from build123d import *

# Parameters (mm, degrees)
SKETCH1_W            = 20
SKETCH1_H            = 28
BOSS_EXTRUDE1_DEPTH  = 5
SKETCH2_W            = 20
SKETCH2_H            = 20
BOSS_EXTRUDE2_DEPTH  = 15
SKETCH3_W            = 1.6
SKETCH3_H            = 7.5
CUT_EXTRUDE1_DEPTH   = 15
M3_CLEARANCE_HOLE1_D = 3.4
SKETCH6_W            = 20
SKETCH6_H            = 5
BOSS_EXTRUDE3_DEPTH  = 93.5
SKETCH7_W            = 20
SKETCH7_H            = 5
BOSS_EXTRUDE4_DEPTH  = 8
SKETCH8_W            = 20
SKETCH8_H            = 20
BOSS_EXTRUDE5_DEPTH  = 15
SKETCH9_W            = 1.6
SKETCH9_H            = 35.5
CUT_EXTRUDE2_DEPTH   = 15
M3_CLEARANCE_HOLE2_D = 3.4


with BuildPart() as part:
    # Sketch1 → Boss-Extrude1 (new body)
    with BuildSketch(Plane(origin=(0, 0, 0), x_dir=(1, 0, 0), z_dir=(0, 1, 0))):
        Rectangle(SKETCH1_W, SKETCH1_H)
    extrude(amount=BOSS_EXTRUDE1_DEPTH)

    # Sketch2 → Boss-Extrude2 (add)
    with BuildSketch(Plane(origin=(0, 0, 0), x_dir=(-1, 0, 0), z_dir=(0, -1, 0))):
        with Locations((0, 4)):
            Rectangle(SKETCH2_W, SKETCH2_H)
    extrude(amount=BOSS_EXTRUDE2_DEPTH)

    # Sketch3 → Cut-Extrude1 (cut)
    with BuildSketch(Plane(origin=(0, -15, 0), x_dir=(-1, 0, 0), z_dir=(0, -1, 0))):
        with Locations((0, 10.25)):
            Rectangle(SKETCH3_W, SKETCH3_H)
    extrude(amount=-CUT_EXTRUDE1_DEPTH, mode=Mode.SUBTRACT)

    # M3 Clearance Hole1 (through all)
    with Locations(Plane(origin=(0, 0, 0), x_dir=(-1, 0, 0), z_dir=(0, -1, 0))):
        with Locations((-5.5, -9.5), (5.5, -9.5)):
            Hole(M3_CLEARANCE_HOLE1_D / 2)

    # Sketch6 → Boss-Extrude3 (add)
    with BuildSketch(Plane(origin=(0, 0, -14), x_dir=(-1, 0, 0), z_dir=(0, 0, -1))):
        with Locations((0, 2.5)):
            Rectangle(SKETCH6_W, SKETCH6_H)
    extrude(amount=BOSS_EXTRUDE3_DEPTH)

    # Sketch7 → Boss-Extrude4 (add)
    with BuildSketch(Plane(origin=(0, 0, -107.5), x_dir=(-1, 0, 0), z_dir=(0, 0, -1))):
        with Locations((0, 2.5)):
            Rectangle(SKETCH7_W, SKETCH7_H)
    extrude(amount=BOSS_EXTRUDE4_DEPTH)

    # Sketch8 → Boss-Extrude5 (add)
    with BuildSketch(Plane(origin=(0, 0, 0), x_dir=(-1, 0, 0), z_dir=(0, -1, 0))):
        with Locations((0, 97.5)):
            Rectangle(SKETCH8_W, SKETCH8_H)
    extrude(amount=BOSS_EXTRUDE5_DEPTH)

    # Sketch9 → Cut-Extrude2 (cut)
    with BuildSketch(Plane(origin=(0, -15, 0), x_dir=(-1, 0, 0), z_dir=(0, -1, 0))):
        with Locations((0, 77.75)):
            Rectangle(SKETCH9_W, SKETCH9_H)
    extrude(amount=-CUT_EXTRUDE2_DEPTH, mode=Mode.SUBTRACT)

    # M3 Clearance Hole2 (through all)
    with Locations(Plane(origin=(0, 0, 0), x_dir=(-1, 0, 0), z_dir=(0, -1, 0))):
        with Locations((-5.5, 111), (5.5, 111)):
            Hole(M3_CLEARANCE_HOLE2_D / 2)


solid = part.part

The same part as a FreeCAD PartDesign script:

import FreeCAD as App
import Part
import Sketcher
Q = App.Units.Quantity

doc = App.newDocument("Part")
params = doc.addObject("Spreadsheet::Sheet", "Params")
for row, (alias, value) in enumerate([
    ("sketch1_width", "20 mm"),
    ("sketch1_height", "28 mm"),
    ("pad1_length", "5 mm"),
    ("sketch2_width", "20 mm"),
    ("pad2_length", "15 mm"),
    ("sketch3_width", "1.6 mm"),
    ("sketch3_height", "7.5 mm"),
    ("pocket1_length", "15 mm"),
    ("sketch4_diameter", "3.4 mm"),
    ("hole_diameter", "3.4 mm"),
    ("sketch5_width", "20 mm"),
    ("sketch5_height", "5 mm"),
    ("pad3_length", "93.5 mm"),
    ("sketch6_width", "20 mm"),
    ("sketch6_height", "5 mm"),
    ("pad4_length", "8 mm"),
    ("sketch7_width", "20 mm"),
    ("pad5_length", "15 mm"),
    ("sketch8_width", "1.6 mm"),
    ("sketch8_height", "35.5 mm"),
    ("pocket2_length", "15 mm"),
    ("sketch9_diameter", "3.4 mm"),
    ("hole2_diameter", "3.4 mm"),
], start=1):
    params.set(f"A{row}", alias)
    params.set(f"B{row}", "=" + value)
    params.setAlias(f"B{row}", alias)

body = doc.addObject("PartDesign::Body", "Body")

sketch1 = body.newObject("Sketcher::SketchObject", "Sketch")
sketch1.AttachmentSupport = (doc.getObject("XZ_Plane"), [""])
sketch1.MapMode = "FlatFace"
sketch1.addGeometry([
    Part.LineSegment(App.Vector(-10, -14, 0), App.Vector(-10, 14, 0)),
    Part.LineSegment(App.Vector(-10, 14, 0), App.Vector(10, 14, 0)),
    Part.LineSegment(App.Vector(10, 14, 0), App.Vector(10, -14, 0)),
    Part.LineSegment(App.Vector(10, -14, 0), App.Vector(-10, -14, 0)),
], False)
sketch1.addConstraint([
    Sketcher.Constraint("Coincident", 0, 2, 1, 1),
    Sketcher.Constraint("Coincident", 1, 2, 2, 1),
    Sketcher.Constraint("Coincident", 2, 2, 3, 1),
    Sketcher.Constraint("Coincident", 3, 2, 0, 1),
    Sketcher.Constraint("Vertical", 0),
    Sketcher.Constraint("Horizontal", 1),
    Sketcher.Constraint("Vertical", 2),
    Sketcher.Constraint("Horizontal", 3),
    Sketcher.Constraint("Symmetric", 0, 2, 2, 2, -1, 1),
    Sketcher.Constraint("DistanceX", 1, 1, 1, 2, Q("20 mm")),
    Sketcher.Constraint("DistanceY", 0, 1, 0, 2, Q("28 mm")),
])
sketch1.setExpression("Constraints[9]", "Params.sketch1_width")
sketch1.setExpression("Constraints[10]", "Params.sketch1_height")
pad1 = body.newObject("PartDesign::Pad", "Pad")
pad1.Profile = sketch1
pad1.setExpression("Length", "Params.pad1_length")
pad1.Reversed = True

sketch2 = body.newObject("Sketcher::SketchObject", "Sketch001")
sketch2.AttachmentSupport = (doc.getObject("XZ_Plane"), [""])
sketch2.MapMode = "FlatFace"
sketch2.addGeometry([
    Part.LineSegment(App.Vector(10, -14, 0), App.Vector(10, 6, 0)),
    Part.LineSegment(App.Vector(10, 6, 0), App.Vector(-10, 6, 0)),
    Part.LineSegment(App.Vector(-10, 6, 0), App.Vector(-10, -14, 0)),
    Part.LineSegment(App.Vector(-10, -14, 0), App.Vector(10, -14, 0)),
], False)
sketch2.addConstraint([
    Sketcher.Constraint("Coincident", 0, 2, 1, 1),
    Sketcher.Constraint("Coincident", 1, 2, 2, 1),
    Sketcher.Constraint("Coincident", 2, 2, 3, 1),
    Sketcher.Constraint("Coincident", 3, 2, 0, 1),
    Sketcher.Constraint("Vertical", 0),
    Sketcher.Constraint("Horizontal", 1),
    Sketcher.Constraint("Vertical", 2),
    Sketcher.Constraint("Horizontal", 3),
    Sketcher.Constraint("Equal", 3, 0),
    Sketcher.Constraint("DistanceX", 1, 2, 1, 1, Q("20 mm")),
    Sketcher.Constraint("DistanceX", -1, 1, 0, 2, Q("10 mm")),
    Sketcher.Constraint("DistanceY", -1, 1, 0, 2, Q("6 mm")),
])
sketch2.setExpression("Constraints[9]", "Params.sketch2_width")
pad2 = body.newObject("PartDesign::Pad", "Pad001")
pad2.Profile = sketch2
pad2.setExpression("Length", "Params.pad2_length")

sketch3 = body.newObject("Sketcher::SketchObject", "Sketch002")
sketch3.AttachmentSupport = (doc.getObject("XZ_Plane"), [""])
sketch3.MapMode = "FlatFace"
sketch3.AttachmentOffset = App.Placement(App.Vector(0, 0, 15), App.Rotation())
sketch3.addGeometry([
    Part.LineSegment(App.Vector(0.8, -14, 0), App.Vector(0.8, -6.5, 0)),
    Part.LineSegment(App.Vector(0.8, -6.5, 0), App.Vector(-0.8, -6.5, 0)),
    Part.LineSegment(App.Vector(-0.8, -6.5, 0), App.Vector(-0.8, -14, 0)),
    Part.LineSegment(App.Vector(-0.8, -14, 0), App.Vector(0.8, -14, 0)),
], False)
sketch3.addConstraint([
    Sketcher.Constraint("Coincident", 0, 2, 1, 1),
    Sketcher.Constraint("Coincident", 1, 2, 2, 1),
    Sketcher.Constraint("Coincident", 2, 2, 3, 1),
    Sketcher.Constraint("Coincident", 3, 2, 0, 1),
    Sketcher.Constraint("Vertical", 0),
    Sketcher.Constraint("Horizontal", 1),
    Sketcher.Constraint("Vertical", 2),
    Sketcher.Constraint("Horizontal", 3),
    Sketcher.Constraint("DistanceX", 1, 2, 1, 1, Q("1.6 mm")),
    Sketcher.Constraint("DistanceY", 0, 1, 0, 2, Q("7.5 mm")),
    Sketcher.Constraint("DistanceY", 2, 2, -1, 1, Q("14 mm")),
    Sketcher.Constraint("DistanceX", -1, 1, 0, 2, Q("0.8 mm")),
])
sketch3.setExpression("Constraints[8]", "Params.sketch3_width")
sketch3.setExpression("Constraints[9]", "Params.sketch3_height")
pocket1 = body.newObject("PartDesign::Pocket", "Pocket")
pocket1.Profile = sketch3
pocket1.setExpression("Length", "Params.pocket1_length")

sketch4 = body.newObject("Sketcher::SketchObject", "Sketch003")
sketch4.AttachmentSupport = (doc.getObject("XZ_Plane"), [""])
sketch4.MapMode = "FlatFace"
sketch4.addGeometry([
    Part.Circle(App.Vector(5.5, 9.5, 0), App.Vector(0, 0, 1), 1.7),
    Part.Circle(App.Vector(-5.5, 9.5, 0), App.Vector(0, 0, 1), 1.7),
], False)
sketch4.addConstraint([
    Sketcher.Constraint("Equal", 0, 1),
    Sketcher.Constraint("Symmetric", 0, 3, 1, 3, -2),
    Sketcher.Constraint("Diameter", 0, Q("3.4 mm")),
    Sketcher.Constraint("DistanceX", 1, 3, 0, 3, Q("11 mm")),
    Sketcher.Constraint("DistanceY", -1, 1, 0, 3, Q("9.5 mm")),
])
sketch4.setExpression("Constraints[2]", "Params.sketch4_diameter")
doc.recompute()
hole = body.newObject("PartDesign::Hole", "Hole")
hole.Profile = sketch4
hole.ThreadType = "None"
hole.setExpression("Diameter", "Params.hole_diameter")
hole.DepthType = "ThroughAll"

sketch5 = body.newObject("Sketcher::SketchObject", "Sketch004")
sketch5.AttachmentSupport = (doc.getObject("XY_Plane"), [""])
sketch5.MapMode = "FlatFace"
sketch5.AttachmentOffset = App.Placement(App.Vector(0, 0, -14), App.Rotation())
sketch5.addGeometry([
    Part.LineSegment(App.Vector(10, 5, 0), App.Vector(10, 0, 0)),
    Part.LineSegment(App.Vector(10, 0, 0), App.Vector(-10, 0, 0)),
    Part.LineSegment(App.Vector(-10, 0, 0), App.Vector(-10, 5, 0)),
    Part.LineSegment(App.Vector(-10, 5, 0), App.Vector(10, 5, 0)),
], False)
sketch5.addConstraint([
    Sketcher.Constraint("Coincident", 0, 2, 1, 1),
    Sketcher.Constraint("Coincident", 1, 2, 2, 1),
    Sketcher.Constraint("Coincident", 2, 2, 3, 1),
    Sketcher.Constraint("Coincident", 3, 2, 0, 1),
    Sketcher.Constraint("Vertical", 0),
    Sketcher.Constraint("Horizontal", 1),
    Sketcher.Constraint("Vertical", 2),
    Sketcher.Constraint("Horizontal", 3),
    Sketcher.Constraint("Symmetric", 0, 2, 1, 2, -1, 1),
    Sketcher.Constraint("DistanceX", 1, 2, 1, 1, Q("20 mm")),
    Sketcher.Constraint("DistanceY", 0, 2, 0, 1, Q("5 mm")),
])
sketch5.setExpression("Constraints[9]", "Params.sketch5_width")
sketch5.setExpression("Constraints[10]", "Params.sketch5_height")
pad3 = body.newObject("PartDesign::Pad", "Pad002")
pad3.Profile = sketch5
pad3.setExpression("Length", "Params.pad3_length")
pad3.Reversed = True

sketch6 = body.newObject("Sketcher::SketchObject", "Sketch005")
sketch6.AttachmentSupport = (doc.getObject("XY_Plane"), [""])
sketch6.MapMode = "FlatFace"
sketch6.AttachmentOffset = App.Placement(App.Vector(0, 0, -107.5), App.Rotation())
sketch6.addGeometry([
    Part.LineSegment(App.Vector(10, 5, 0), App.Vector(10, 0, 0)),
    Part.LineSegment(App.Vector(10, 0, 0), App.Vector(-10, 0, 0)),
    Part.LineSegment(App.Vector(-10, 0, 0), App.Vector(-10, 5, 0)),
    Part.LineSegment(App.Vector(-10, 5, 0), App.Vector(10, 5, 0)),
], False)
sketch6.addConstraint([
    Sketcher.Constraint("Coincident", 0, 2, 1, 1),
    Sketcher.Constraint("Coincident", 1, 2, 2, 1),
    Sketcher.Constraint("Coincident", 2, 2, 3, 1),
    Sketcher.Constraint("Coincident", 3, 2, 0, 1),
    Sketcher.Constraint("Vertical", 0),
    Sketcher.Constraint("Horizontal", 1),
    Sketcher.Constraint("Vertical", 2),
    Sketcher.Constraint("Horizontal", 3),
    Sketcher.Constraint("Symmetric", 0, 2, 1, 2, -1, 1),
    Sketcher.Constraint("DistanceX", 1, 2, 1, 1, Q("20 mm")),
    Sketcher.Constraint("DistanceY", 0, 2, 0, 1, Q("5 mm")),
])
sketch6.setExpression("Constraints[9]", "Params.sketch6_width")
sketch6.setExpression("Constraints[10]", "Params.sketch6_height")
pad4 = body.newObject("PartDesign::Pad", "Pad003")
pad4.Profile = sketch6
pad4.setExpression("Length", "Params.pad4_length")
pad4.Reversed = True

sketch7 = body.newObject("Sketcher::SketchObject", "Sketch006")
sketch7.AttachmentSupport = (doc.getObject("XZ_Plane"), [""])
sketch7.MapMode = "FlatFace"
sketch7.addGeometry([
    Part.LineSegment(App.Vector(10, -107.5, 0), App.Vector(10, -87.5, 0)),
    Part.LineSegment(App.Vector(10, -87.5, 0), App.Vector(-10, -87.5, 0)),
    Part.LineSegment(App.Vector(-10, -87.5, 0), App.Vector(-10, -107.5, 0)),
    Part.LineSegment(App.Vector(-10, -107.5, 0), App.Vector(10, -107.5, 0)),
], False)
sketch7.addConstraint([
    Sketcher.Constraint("Coincident", 0, 2, 1, 1),
    Sketcher.Constraint("Coincident", 1, 2, 2, 1),
    Sketcher.Constraint("Coincident", 2, 2, 3, 1),
    Sketcher.Constraint("Coincident", 3, 2, 0, 1),
    Sketcher.Constraint("Vertical", 0),
    Sketcher.Constraint("Horizontal", 1),
    Sketcher.Constraint("Vertical", 2),
    Sketcher.Constraint("Horizontal", 3),
    Sketcher.Constraint("Equal", 3, 0),
    Sketcher.Constraint("DistanceX", 1, 2, 1, 1, Q("20 mm")),
    Sketcher.Constraint("DistanceX", -1, 1, 0, 2, Q("10 mm")),
    Sketcher.Constraint("DistanceY", 0, 2, -1, 1, Q("87.5 mm")),
])
sketch7.setExpression("Constraints[9]", "Params.sketch7_width")
pad5 = body.newObject("PartDesign::Pad", "Pad004")
pad5.Profile = sketch7
pad5.setExpression("Length", "Params.pad5_length")

sketch8 = body.newObject("Sketcher::SketchObject", "Sketch007")
sketch8.AttachmentSupport = (doc.getObject("XZ_Plane"), [""])
sketch8.MapMode = "FlatFace"
sketch8.AttachmentOffset = App.Placement(App.Vector(0, 0, 15), App.Rotation())
sketch8.addGeometry([
    Part.LineSegment(App.Vector(0.8, -95.5, 0), App.Vector(0.8, -60, 0)),
    Part.LineSegment(App.Vector(0.8, -60, 0), App.Vector(-0.8, -60, 0)),
    Part.LineSegment(App.Vector(-0.8, -60, 0), App.Vector(-0.8, -95.5, 0)),
    Part.LineSegment(App.Vector(-0.8, -95.5, 0), App.Vector(0.8, -95.5, 0)),
], False)
sketch8.addConstraint([
    Sketcher.Constraint("Coincident", 0, 2, 1, 1),
    Sketcher.Constraint("Coincident", 1, 2, 2, 1),
    Sketcher.Constraint("Coincident", 2, 2, 3, 1),
    Sketcher.Constraint("Coincident", 3, 2, 0, 1),
    Sketcher.Constraint("Vertical", 0),
    Sketcher.Constraint("Horizontal", 1),
    Sketcher.Constraint("Vertical", 2),
    Sketcher.Constraint("Horizontal", 3),
    Sketcher.Constraint("DistanceX", 1, 2, 1, 1, Q("1.6 mm")),
    Sketcher.Constraint("DistanceY", 0, 1, 0, 2, Q("35.5 mm")),
    Sketcher.Constraint("DistanceY", 0, 2, -1, 1, Q("60 mm")),
    Sketcher.Constraint("DistanceX", -1, 1, 0, 2, Q("0.8 mm")),
])
sketch8.setExpression("Constraints[8]", "Params.sketch8_width")
sketch8.setExpression("Constraints[9]", "Params.sketch8_height")
pocket2 = body.newObject("PartDesign::Pocket", "Pocket001")
pocket2.Profile = sketch8
pocket2.setExpression("Length", "Params.pocket2_length")

sketch9 = body.newObject("Sketcher::SketchObject", "Sketch008")
sketch9.AttachmentSupport = (doc.getObject("XZ_Plane"), [""])
sketch9.MapMode = "FlatFace"
sketch9.addGeometry([
    Part.Circle(App.Vector(5.5, -111, 0), App.Vector(0, 0, 1), 1.7),
    Part.Circle(App.Vector(-5.5, -111, 0), App.Vector(0, 0, 1), 1.7),
], False)
sketch9.addConstraint([
    Sketcher.Constraint("Equal", 0, 1),
    Sketcher.Constraint("Symmetric", 0, 3, 1, 3, -2),
    Sketcher.Constraint("Diameter", 0, Q("3.4 mm")),
    Sketcher.Constraint("DistanceY", 0, 3, -1, 1, Q("111 mm")),
    Sketcher.Constraint("DistanceX", 1, 3, 0, 3, Q("11 mm")),
])
sketch9.setExpression("Constraints[2]", "Params.sketch9_diameter")
doc.recompute()
hole2 = body.newObject("PartDesign::Hole", "Hole001")
hole2.Profile = sketch9
hole2.ThreadType = "None"
hole2.setExpression("Diameter", "Params.hole2_diameter")
hole2.DepthType = "ThroughAll"

doc.recompute()
